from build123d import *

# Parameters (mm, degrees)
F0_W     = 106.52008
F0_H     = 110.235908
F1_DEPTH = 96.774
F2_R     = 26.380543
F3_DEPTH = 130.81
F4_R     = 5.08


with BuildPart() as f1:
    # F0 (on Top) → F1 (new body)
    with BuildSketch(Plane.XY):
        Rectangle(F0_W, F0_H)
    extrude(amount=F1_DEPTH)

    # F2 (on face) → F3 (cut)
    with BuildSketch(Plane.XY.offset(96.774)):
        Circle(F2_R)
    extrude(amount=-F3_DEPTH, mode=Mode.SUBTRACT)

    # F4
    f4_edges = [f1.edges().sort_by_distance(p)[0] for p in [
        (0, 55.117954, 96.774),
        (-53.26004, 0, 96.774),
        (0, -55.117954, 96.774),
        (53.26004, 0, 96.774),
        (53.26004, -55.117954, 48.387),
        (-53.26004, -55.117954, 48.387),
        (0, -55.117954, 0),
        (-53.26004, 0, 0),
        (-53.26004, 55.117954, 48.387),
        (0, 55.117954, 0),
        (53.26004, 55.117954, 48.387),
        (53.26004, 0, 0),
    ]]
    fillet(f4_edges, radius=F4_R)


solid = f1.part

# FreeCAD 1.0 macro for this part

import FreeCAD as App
import Part
import Sketcher

V = App.Vector
Q = App.Units.Quantity


def edges_at(feature, points):
    """Names of the edges that pass closest to the given points."""
    edges = feature.Shape.Edges
    near = lambda p: min(range(len(edges)), key=lambda i: edges[i].distToShape(Part.Vertex(*p))[0])
    return sorted({f"Edge{near(p) + 1}" for p in points})

doc = App.newDocument("Part")
body = doc.addObject("PartDesign::Body", "Body")

sketch1 = body.newObject("Sketcher::SketchObject", "Sketch")
sketch1.AttachmentSupport = (doc.getObject("XY_Plane"), [""])
sketch1.MapMode = "FlatFace"
sketch1.addGeometry([
    Part.LineSegment(V(-53.26004, 55.117954, 0), V(-53.26004, -55.117954, 0)),
    Part.LineSegment(V(-53.26004, -55.117954, 0), V(53.26004, -55.117954, 0)),
    Part.LineSegment(V(53.26004, -55.117954, 0), V(53.26004, 55.117954, 0)),
    Part.LineSegment(V(53.26004, 55.117954, 0), V(-53.26004, 55.117954, 0)),
], False)
sketch1.addConstraint([
    Sketcher.Constraint("Coincident", 0, 2, 1, 1),
    Sketcher.Constraint("Coincident", 1, 2, 2, 1),
    Sketcher.Constraint("Coincident", 2, 2, 3, 1),
    Sketcher.Constraint("Coincident", 3, 2, 0, 1),
    Sketcher.Constraint("Vertical", 0),
    Sketcher.Constraint("Horizontal", 1),
    Sketcher.Constraint("Vertical", 2),
    Sketcher.Constraint("Horizontal", 3),
    Sketcher.Constraint("Symmetric", 0, 2, 2, 2, -1, 1),
    Sketcher.Constraint("DistanceX", 1, 1, 1, 2, Q("106.52008 mm")),
    Sketcher.Constraint("DistanceY", 0, 2, 0, 1, Q("110.235908 mm")),
])
pad1 = body.newObject("PartDesign::Pad", "Pad")
pad1.Profile = sketch1
pad1.Length = Q("3.81 in")

sketch2 = body.newObject("Sketcher::SketchObject", "Sketch001")
sketch2.AttachmentSupport = (doc.getObject("XY_Plane"), [""])
sketch2.MapMode = "FlatFace"
sketch2.AttachmentOffset = App.Placement(V(0, 0, 3.81 * 25.4), App.Rotation())
sketch2.addGeometry(Part.Circle(V(0, 0, 0), V(0, 0, 1), 26.380543), False)
sketch2.addConstraint([
    Sketcher.Constraint("Coincident", 0, 3, -1, 1),
    Sketcher.Constraint("Diameter", 0, Q("52.761086 mm")),
])
pocket1 = body.newObject("PartDesign::Pocket", "Pocket")
pocket1.Profile = sketch2
pocket1.Length = Q("5.15 in")
doc.recompute()

fillet = body.newObject("PartDesign::Fillet", "Fillet")
fillet.Base = (pocket1, edges_at(pocket1, [
    (0, 55.118, 96.774),
    (-53.26, 0, 96.774),
    (0, -55.118, 96.774),
    (53.26, 0, 96.774),
    (53.26, -55.118, 48.387),
    (-53.26, -55.118, 48.387),
    (0, -55.118, 0),
    (-53.26, 0, 0),
    (-53.26, 55.118, 48.387),
    (0, 55.118, 0),
    (53.26, 55.118, 48.387),
    (53.26, 0, 0),
]))
fillet.Radius = Q("0.2 in")

doc.recompute()
